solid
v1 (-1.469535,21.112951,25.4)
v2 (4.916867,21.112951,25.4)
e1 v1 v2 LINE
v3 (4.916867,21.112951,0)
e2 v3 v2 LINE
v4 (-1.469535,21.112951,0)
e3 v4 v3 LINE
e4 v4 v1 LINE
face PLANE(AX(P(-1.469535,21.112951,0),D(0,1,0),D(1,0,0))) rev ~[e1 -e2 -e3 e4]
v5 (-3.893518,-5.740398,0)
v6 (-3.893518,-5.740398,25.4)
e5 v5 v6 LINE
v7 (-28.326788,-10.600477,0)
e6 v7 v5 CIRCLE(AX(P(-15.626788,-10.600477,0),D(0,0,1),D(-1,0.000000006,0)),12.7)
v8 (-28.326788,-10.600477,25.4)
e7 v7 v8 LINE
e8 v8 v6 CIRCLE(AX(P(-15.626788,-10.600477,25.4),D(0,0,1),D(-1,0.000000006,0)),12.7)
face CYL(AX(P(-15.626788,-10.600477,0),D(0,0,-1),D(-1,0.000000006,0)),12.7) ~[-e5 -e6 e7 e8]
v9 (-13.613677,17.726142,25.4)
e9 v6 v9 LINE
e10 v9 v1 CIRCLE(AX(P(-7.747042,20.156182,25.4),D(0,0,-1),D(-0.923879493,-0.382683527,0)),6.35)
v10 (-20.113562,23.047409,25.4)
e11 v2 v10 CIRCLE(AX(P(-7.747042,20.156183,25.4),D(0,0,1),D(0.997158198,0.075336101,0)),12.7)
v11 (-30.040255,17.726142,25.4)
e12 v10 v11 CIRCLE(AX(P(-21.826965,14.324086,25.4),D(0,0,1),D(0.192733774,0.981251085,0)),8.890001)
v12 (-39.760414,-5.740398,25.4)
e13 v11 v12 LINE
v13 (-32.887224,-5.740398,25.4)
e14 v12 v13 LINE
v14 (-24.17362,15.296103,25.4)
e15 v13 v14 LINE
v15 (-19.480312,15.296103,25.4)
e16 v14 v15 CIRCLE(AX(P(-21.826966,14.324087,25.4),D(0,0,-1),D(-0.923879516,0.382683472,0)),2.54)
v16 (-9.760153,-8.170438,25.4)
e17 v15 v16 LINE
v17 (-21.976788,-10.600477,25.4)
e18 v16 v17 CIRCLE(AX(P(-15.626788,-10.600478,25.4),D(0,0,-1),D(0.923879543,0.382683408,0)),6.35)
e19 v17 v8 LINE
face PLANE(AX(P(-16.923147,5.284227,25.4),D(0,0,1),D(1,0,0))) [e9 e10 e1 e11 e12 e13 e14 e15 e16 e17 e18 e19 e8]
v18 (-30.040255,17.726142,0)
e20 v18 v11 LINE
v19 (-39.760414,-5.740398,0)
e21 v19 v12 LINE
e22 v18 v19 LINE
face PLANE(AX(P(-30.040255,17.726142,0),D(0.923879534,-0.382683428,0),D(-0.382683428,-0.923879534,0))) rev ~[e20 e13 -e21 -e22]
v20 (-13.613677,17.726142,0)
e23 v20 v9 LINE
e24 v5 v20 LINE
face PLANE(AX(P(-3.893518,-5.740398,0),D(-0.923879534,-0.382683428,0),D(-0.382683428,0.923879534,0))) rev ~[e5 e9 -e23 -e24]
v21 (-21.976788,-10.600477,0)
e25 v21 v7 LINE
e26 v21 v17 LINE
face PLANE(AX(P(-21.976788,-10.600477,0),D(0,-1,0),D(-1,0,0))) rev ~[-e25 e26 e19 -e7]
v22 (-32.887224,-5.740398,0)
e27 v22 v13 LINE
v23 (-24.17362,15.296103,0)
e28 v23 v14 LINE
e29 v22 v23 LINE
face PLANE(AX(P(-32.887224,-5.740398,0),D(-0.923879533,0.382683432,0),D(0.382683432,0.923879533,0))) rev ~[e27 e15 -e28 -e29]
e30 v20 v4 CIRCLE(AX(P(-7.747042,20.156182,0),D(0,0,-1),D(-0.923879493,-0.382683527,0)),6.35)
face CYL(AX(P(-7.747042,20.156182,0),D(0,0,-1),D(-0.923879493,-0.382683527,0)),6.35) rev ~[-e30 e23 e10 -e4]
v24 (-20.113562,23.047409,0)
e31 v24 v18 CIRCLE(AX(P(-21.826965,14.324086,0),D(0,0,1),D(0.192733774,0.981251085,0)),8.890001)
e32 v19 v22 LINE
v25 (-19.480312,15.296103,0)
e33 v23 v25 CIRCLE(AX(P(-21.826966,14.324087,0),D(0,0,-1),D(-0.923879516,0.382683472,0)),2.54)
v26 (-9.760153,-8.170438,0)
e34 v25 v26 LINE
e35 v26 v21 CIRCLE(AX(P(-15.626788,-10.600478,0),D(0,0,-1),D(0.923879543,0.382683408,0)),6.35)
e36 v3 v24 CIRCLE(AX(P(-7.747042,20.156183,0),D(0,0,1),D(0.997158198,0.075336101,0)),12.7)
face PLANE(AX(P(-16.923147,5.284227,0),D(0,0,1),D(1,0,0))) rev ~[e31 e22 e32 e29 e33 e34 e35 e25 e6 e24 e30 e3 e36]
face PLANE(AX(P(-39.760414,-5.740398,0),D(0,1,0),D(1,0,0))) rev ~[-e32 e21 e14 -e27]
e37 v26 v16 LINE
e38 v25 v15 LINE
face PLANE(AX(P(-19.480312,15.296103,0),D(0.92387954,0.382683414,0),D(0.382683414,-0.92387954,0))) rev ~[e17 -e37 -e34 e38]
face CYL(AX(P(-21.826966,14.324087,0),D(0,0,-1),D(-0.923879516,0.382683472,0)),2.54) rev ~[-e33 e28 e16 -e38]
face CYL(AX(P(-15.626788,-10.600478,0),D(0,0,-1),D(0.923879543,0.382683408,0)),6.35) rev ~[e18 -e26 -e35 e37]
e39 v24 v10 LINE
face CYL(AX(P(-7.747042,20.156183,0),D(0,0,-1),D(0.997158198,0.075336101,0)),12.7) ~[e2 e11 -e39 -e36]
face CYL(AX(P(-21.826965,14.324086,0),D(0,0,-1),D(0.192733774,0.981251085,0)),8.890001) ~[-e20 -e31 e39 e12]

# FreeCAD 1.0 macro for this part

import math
import FreeCAD as App
import Part
import Sketcher

V = App.Vector
Q = App.Units.Quantity

doc = App.newDocument("Part")
body = doc.addObject("PartDesign::Body", "Body")

# Sketch on XY plane
sketch1 = doc.addObject("Sketcher::SketchObject", "Sketch")
body.addObject(sketch1)
sketch1.AttachmentSupport = (doc.XY_Plane, [""])
sketch1.MapMode = "FlatFace"
sketch1.addGeometry(Part.LineSegment(V(-30.040255, 17.726142, 0), V(-39.760414, -5.740398, 0)), False)
sketch1.addGeometry(Part.LineSegment(V(-39.760414, -5.740398, 0), V(-32.887224, -5.740398, 0)), False)
sketch1.addGeometry(Part.LineSegment(V(-32.887224, -5.740398, 0), V(-24.17362, 15.296103, 0)), False)
sketch1.addGeometry(Part.ArcOfCircle(Part.Circle(V(-21.826966, 14.324087, 0), V(0, 0, 1), 2.54), math.radians(22.500002), math.radians(157.499998)), False)
sketch1.addGeometry(Part.LineSegment(V(-19.480312, 15.296103, 0), V(-9.760153, -8.170438, 0)), False)
sketch1.addGeometry(Part.ArcOfCircle(Part.Circle(V(-15.626788, -10.600478, 0), V(0, 0, 1), 6.35), math.radians(179.999994), math.radians(382.499998)), False)
sketch1.addGeometry(Part.LineSegment(V(-21.976788, -10.600477, 0), V(-28.326788, -10.600477, 0)), False)
sketch1.addGeometry(Part.ArcOfCircle(Part.Circle(V(-15.626788, -10.600477, 0), V(0, 0, 1), 12.7), math.radians(180), math.radians(382.499998)), False)
sketch1.addGeometry(Part.LineSegment(V(-3.893518, -5.740398, 0), V(-13.613677, 17.726142, 0)), False)
sketch1.addGeometry(Part.ArcOfCircle(Part.Circle(V(-7.747042, 20.156182, 0), V(0, 0, 1), 6.35), math.radians(8.665884), math.radians(202.500006)), False)
sketch1.addGeometry(Part.LineSegment(V(-1.469535, 21.112951, 0), V(4.916867, 21.112951, 0)), False)
sketch1.addGeometry(Part.ArcOfCircle(Part.Circle(V(-7.747042, 20.156183, 0), V(0, 0, 1), 12.7), math.radians(4.320534), math.radians(166.840912)), False)
sketch1.addGeometry(Part.ArcOfCircle(Part.Circle(V(-21.826965, 14.324086, 0), V(0, 0, 1), 8.890001), math.radians(78.887633), math.radians(157.500002)), False)
sketch1.addConstraint(Sketcher.Constraint("Coincident", 0, 2, 1, 1))
sketch1.addConstraint(Sketcher.Constraint("Coincident", 1, 2, 2, 1))
sketch1.addConstraint(Sketcher.Constraint("Tangent", 2, 2, 3, 2))
sketch1.addConstraint(Sketcher.Constraint("Tangent", 3, 1, 4, 1))
sketch1.addConstraint(Sketcher.Constraint("Tangent", 4, 2, 5, 2))
sketch1.addConstraint(Sketcher.Constraint("Coincident", 5, 1, 6, 1))
sketch1.addConstraint(Sketcher.Constraint("Coincident", 6, 2, 7, 1))
sketch1.addConstraint(Sketcher.Constraint("Tangent", 7, 2, 8, 1))
sketch1.addConstraint(Sketcher.Constraint("Tangent", 8, 2, 9, 2))
sketch1.addConstraint(Sketcher.Constraint("Coincident", 9, 1, 10, 1))
sketch1.addConstraint(Sketcher.Constraint("Coincident", 10, 2, 11, 1))
sketch1.addConstraint(Sketcher.Constraint("Coincident", 11, 2, 12, 1))
sketch1.addConstraint(Sketcher.Constraint("Tangent", 12, 2, 0, 1))
sketch1.addConstraint(Sketcher.Constraint("Horizontal", 1))
sketch1.addConstraint(Sketcher.Constraint("Horizontal", 6))
sketch1.addConstraint(Sketcher.Constraint("Horizontal", 10))
sketch1.addConstraint(Sketcher.Constraint("Coincident", 7, 3, 5, 3))
sketch1.addConstraint(Sketcher.Constraint("Coincident", 11, 3, 9, 3))
sketch1.addConstraint(Sketcher.Constraint("Coincident", 12, 3, 3, 3))
sketch1.addConstraint(Sketcher.Constraint("Equal", 5, 9))
sketch1.addConstraint(Sketcher.Constraint("Equal", 7, 11))
sketch1.addConstraint(Sketcher.Constraint("Parallel", 0, 2))
sketch1.addConstraint(Sketcher.Constraint("Parallel", 4, 8))
sketch1.addConstraint(Sketcher.Constraint("Horizontal", 2, 2, 3, 1))
sketch1.addConstraint(Sketcher.Constraint("Horizontal", 7, 3, 5, 1))
sketch1.addConstraint(Sketcher.Constraint("Horizontal", 1, 2, 7, 2))
sketch1.addConstraint(Sketcher.Constraint("Horizontal", 8, 2, 12, 2))
sketch1.addConstraint(Sketcher.Constraint("Equal", 0, 4))
sketch1.addConstraint(Sketcher.Constraint("Radius", 3, Q("0.1 in")))
sketch1.addConstraint(Sketcher.Constraint("Radius", 7, Q("0.5 in")))
sketch1.addConstraint(Sketcher.Constraint("Radius", 5, Q("0.25 in")))
sketch1.addConstraint(Sketcher.Constraint("Distance", 0, Q("1 in")))
sketch1.addConstraint(Sketcher.Constraint("Angle", 0, Q("-112.5 deg")))
sketch1.addConstraint(Sketcher.Constraint("DistanceY", 0, 2, -1, 1, Q("0.2259999 in")))
sketch1.addConstraint(Sketcher.Constraint("DistanceX", 9, 1, 10, 2, 6.386402))
sketch1.addConstraint(Sketcher.Constraint("DistanceX", 5, 3, -1, 1, 15.626788))
pad1 = doc.addObject("PartDesign::Pad", "Pad")
body.addObject(pad1)
pad1.Profile = sketch1
pad1.Length = Q("1 in")

doc.recompute()
